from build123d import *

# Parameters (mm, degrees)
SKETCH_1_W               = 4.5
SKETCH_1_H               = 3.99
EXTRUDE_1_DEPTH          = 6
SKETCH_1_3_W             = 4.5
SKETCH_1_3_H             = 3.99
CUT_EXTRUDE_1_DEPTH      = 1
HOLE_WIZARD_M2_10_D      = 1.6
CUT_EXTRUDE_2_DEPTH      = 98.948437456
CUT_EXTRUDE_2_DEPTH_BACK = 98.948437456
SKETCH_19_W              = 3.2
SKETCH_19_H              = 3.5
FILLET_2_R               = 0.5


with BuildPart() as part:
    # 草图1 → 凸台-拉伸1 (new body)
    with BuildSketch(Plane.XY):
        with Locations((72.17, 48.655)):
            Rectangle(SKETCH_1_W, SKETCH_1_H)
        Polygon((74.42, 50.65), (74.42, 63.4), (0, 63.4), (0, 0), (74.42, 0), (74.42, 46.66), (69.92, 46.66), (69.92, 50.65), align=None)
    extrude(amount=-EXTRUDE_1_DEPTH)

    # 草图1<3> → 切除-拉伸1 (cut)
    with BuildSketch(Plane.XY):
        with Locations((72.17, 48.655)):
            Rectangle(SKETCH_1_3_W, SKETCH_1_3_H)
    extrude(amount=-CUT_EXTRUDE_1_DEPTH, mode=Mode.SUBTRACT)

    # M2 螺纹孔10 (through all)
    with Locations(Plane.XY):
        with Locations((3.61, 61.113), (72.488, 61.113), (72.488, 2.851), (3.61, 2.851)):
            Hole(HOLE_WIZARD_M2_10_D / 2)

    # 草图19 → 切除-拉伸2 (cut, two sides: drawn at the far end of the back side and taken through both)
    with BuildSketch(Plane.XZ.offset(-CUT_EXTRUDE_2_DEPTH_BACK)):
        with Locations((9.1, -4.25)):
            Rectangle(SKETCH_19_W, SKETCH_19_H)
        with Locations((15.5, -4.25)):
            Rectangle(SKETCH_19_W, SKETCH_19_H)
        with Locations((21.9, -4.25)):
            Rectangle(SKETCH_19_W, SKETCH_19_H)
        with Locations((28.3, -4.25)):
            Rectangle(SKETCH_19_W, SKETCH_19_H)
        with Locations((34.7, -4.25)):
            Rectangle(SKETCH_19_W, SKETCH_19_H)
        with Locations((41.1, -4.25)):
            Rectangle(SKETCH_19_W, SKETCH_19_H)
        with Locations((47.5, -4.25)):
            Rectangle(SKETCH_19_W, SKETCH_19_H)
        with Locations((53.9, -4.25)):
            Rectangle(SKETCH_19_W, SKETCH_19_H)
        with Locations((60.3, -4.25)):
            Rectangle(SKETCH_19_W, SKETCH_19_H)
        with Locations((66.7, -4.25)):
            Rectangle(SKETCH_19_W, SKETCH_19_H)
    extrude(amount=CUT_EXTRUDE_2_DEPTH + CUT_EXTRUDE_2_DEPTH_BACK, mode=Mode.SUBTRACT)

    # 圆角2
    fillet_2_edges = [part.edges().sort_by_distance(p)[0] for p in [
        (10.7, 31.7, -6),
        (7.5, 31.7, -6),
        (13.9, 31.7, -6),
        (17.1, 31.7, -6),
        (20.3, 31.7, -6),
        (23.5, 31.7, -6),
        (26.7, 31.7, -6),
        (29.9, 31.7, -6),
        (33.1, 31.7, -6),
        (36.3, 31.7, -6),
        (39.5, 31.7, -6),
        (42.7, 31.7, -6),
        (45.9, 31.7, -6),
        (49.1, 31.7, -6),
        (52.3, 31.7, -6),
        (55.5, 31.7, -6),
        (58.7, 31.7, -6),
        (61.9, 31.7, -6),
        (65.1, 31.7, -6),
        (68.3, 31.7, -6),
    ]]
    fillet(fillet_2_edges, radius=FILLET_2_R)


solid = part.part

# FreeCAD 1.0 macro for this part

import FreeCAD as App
import Part
import Sketcher
from FreeCAD import Vector


def edges_at(feature, points):
    """Names of the edges that pass closest to the given points."""
    edges = feature.Shape.Edges
    near = lambda p: min(range(len(edges)), key=lambda i: edges[i].distToShape(Part.Vertex(*p))[0])
    return sorted({f"Edge{near(p) + 1}" for p in points})

doc = App.newDocument("Part")
params = doc.addObject("Spreadsheet::Sheet", "Params")
for row, (alias, value) in enumerate([
    ("sketch1_height", "63.4 mm"),
    ("sketch1_width", "74.42 mm"),
    ("pad1_length", "6 mm"),
    ("sketch2_width", "4.5 mm"),
    ("sketch2_height", "3.99 mm"),
    ("pocket1_length", "1 mm"),
    ("sketch3_diameter", "1.6 mm"),
    ("hole_diameter", "1.6 mm"),
    ("sketch4_width", "3.2 mm"),
    ("sketch4_height", "3.5 mm"),
    ("fillet_radius", "0.5 mm"),
], start=1):
    params.set(f"A{row}", alias)
    params.set(f"B{row}", "=" + value)
    params.setAlias(f"B{row}", alias)

body = doc.addObject("PartDesign::Body", "Body")

sketch1 = body.newObject("Sketcher::SketchObject", "Sketch")
sketch1.AttachmentSupport = (doc.getObject("XY_Plane"), [""])
sketch1.MapMode = "FlatFace"
sketch1.addGeometry(Part.LineSegment(Vector(74, 63, 0), Vector(0, 63, 0)), False)
sketch1.addGeometry(Part.LineSegment(Vector(0, 63, 0), Vector(0, 0, 0)), False)
sketch1.addGeometry(Part.LineSegment(Vector(0, 0, 0), Vector(74, 0, 0)), False)
sketch1.addGeometry(Part.LineSegment(Vector(74, 0, 0), Vector(74, 63, 0)), False)
sketch1.addConstraint(Sketcher.Constraint("Coincident", 0, 2, 1, 1))
sketch1.addConstraint(Sketcher.Constraint("Coincident", 1, 2, 2, 1))
sketch1.addConstraint(Sketcher.Constraint("Coincident", 2, 2, 3, 1))
sketch1.addConstraint(Sketcher.Constraint("Coincident", 3, 2, 0, 1))
sketch1.addConstraint(Sketcher.Constraint("Horizontal", 0))
sketch1.addConstraint(Sketcher.Constraint("Vertical", 1))
sketch1.addConstraint(Sketcher.Constraint("Horizontal", 2))
sketch1.addConstraint(Sketcher.Constraint("Vertical", 3))
sketch1.addConstraint(Sketcher.Constraint("Coincident", 1, 2, -1, 1))
sketch1.addConstraint(Sketcher.Constraint("DistanceY", 1, 2, 1, 1, 63.4))
sketch1.addConstraint(Sketcher.Constraint("DistanceX", 0, 2, 0, 1, 74.42))
sketch1.setExpression("Constraints[9]", "Params.sketch1_height")
sketch1.setExpression("Constraints[10]", "Params.sketch1_width")
pad1 = body.newObject("PartDesign::Pad", "Pad")
pad1.Profile = sketch1
pad1.setExpression("Length", "Params.pad1_length")
pad1.Reversed = True

sketch2 = body.newObject("Sketcher::SketchObject", "Sketch001")
sketch2.AttachmentSupport = (doc.getObject("XY_Plane"), [""])
sketch2.MapMode = "FlatFace"
sketch2.addGeometry(Part.LineSegment(Vector(69.9, 50.6, 0), Vector(69.9, 46.7, 0)), False)
sketch2.addGeometry(Part.LineSegment(Vector(69.9, 46.7, 0), Vector(74.4, 46.7, 0)), False)
sketch2.addGeometry(Part.LineSegment(Vector(74.4, 46.7, 0), Vector(74.4, 50.6, 0)), False)
sketch2.addGeometry(Part.LineSegment(Vector(74.4, 50.6, 0), Vector(69.9, 50.6, 0)), False)
sketch2.addConstraint(Sketcher.Constraint("Coincident", 0, 2, 1, 1))
sketch2.addConstraint(Sketcher.Constraint("Coincident", 1, 2, 2, 1))
sketch2.addConstraint(Sketcher.Constraint("Coincident", 2, 2, 3, 1))
sketch2.addConstraint(Sketcher.Constraint("Coincident", 3, 2, 0, 1))
sketch2.addConstraint(Sketcher.Constraint("Vertical", 0))
sketch2.addConstraint(Sketcher.Constraint("Horizontal", 1))
sketch2.addConstraint(Sketcher.Constraint("Vertical", 2))
sketch2.addConstraint(Sketcher.Constraint("Horizontal", 3))
sketch2.addConstraint(Sketcher.Constraint("DistanceX", 1, 1, 1, 2, 4.5))
sketch2.addConstraint(Sketcher.Constraint("DistanceY", 0, 2, 0, 1, 3.99))
sketch2.addConstraint(Sketcher.Constraint("DistanceX", -1, 1, 0, 2, 69.92))
sketch2.addConstraint(Sketcher.Constraint("DistanceY", -1, 1, 0, 2, 46.66))
sketch2.setExpression("Constraints[8]", "Params.sketch2_width")
sketch2.setExpression("Constraints[9]", "Params.sketch2_height")
pocket1 = body.newObject("PartDesign::Pocket", "Pocket")
pocket1.Profile = sketch2
pocket1.setExpression("Length", "Params.pocket1_length")

sketch3 = body.newObject("Sketcher::SketchObject", "Sketch002")
sketch3.AttachmentSupport = (doc.getObject("XY_Plane"), [""])
sketch3.MapMode = "FlatFace"
sketch3.addGeometry(Part.Circle(Vector(3.6, 61.1, 0), Vector(0, 0, 1), 0.8), False)
sketch3.addGeometry(Part.Circle(Vector(72.5, 61.1, 0), Vector(0, 0, 1), 0.8), False)
sketch3.addGeometry(Part.Circle(Vector(72.5, 2.9, 0), Vector(0, 0, 1), 0.8), False)
sketch3.addGeometry(Part.Circle(Vector(3.6, 2.9, 0), Vector(0, 0, 1), 0.8), False)
sketch3.addConstraint(Sketcher.Constraint("Equal", 0, 1))
sketch3.addConstraint(Sketcher.Constraint("Equal", 1, 2))
sketch3.addConstraint(Sketcher.Constraint("Equal", 2, 3))
sketch3.addConstraint(Sketcher.Constraint("Horizontal", 0, 3, 1, 3))
sketch3.addConstraint(Sketcher.Constraint("Horizontal", 2, 3, 3, 3))
sketch3.addConstraint(Sketcher.Constraint("Vertical", 1, 3, 2, 3))
sketch3.addConstraint(Sketcher.Constraint("Vertical", 0, 3, 3, 3))
sketch3.addConstraint(Sketcher.Constraint("Diameter", 0, 1.6))
sketch3.addConstraint(Sketcher.Constraint("DistanceX", -1, 1, 0, 3, 3.61))
sketch3.addConstraint(Sketcher.Constraint("DistanceY", -1, 1, 0, 3, 61.113))
sketch3.addConstraint(Sketcher.Constraint("DistanceX", -1, 1, 1, 3, 72.488))
sketch3.addConstraint(Sketcher.Constraint("DistanceY", -1, 1, 2, 3, 2.851))
sketch3.setExpression("Constraints[7]", "Params.sketch3_diameter")
doc.recompute()
hole = body.newObject("PartDesign::Hole", "Hole")
hole.Profile = sketch3
hole.ThreadType = "None"
hole.setExpression("Diameter", "Params.hole_diameter")
hole.DepthType = "ThroughAll"

sketch4 = body.newObject("Sketcher::SketchObject", "Sketch003")
sketch4.AttachmentSupport = (doc.getObject("XZ_Plane"), [""])
sketch4.MapMode = "FlatFace"
sketch4.addGeometry(Part.LineSegment(Vector(7.5, -2.5, 0), Vector(7.5, -6, 0)), False)
sketch4.addGeometry(Part.LineSegment(Vector(7.5, -6, 0), Vector(10.7, -6, 0)), False)
sketch4.addGeometry(Part.LineSegment(Vector(10.7, -6, 0), Vector(10.7, -2.5, 0)), False)
sketch4.addGeometry(Part.LineSegment(Vector(10.7, -2.5, 0), Vector(7.5, -2.5, 0)), False)
sketch4.addGeometry(Part.LineSegment(Vector(13.9, -2.5, 0), Vector(13.9, -6, 0)), False)
sketch4.addGeometry(Part.LineSegment(Vector(13.9, -6, 0), Vector(17.1, -6, 0)), False)
sketch4.addGeometry(Part.LineSegment(Vector(17.1, -6, 0), Vector(17.1, -2.5, 0)), False)
sketch4.addGeometry(Part.LineSegment(Vector(17.1, -2.5, 0), Vector(13.9, -2.5, 0)), False)
sketch4.addGeometry(Part.LineSegment(Vector(20.3, -2.5, 0), Vector(20.3, -6, 0)), False)
sketch4.addGeometry(Part.LineSegment(Vector(20.3, -6, 0), Vector(23.5, -6, 0)), False)
sketch4.addGeometry(Part.LineSegment(Vector(23.5, -6, 0), Vector(23.5, -2.5, 0)), False)
sketch4.addGeometry(Part.LineSegment(Vector(23.5, -2.5, 0), Vector(20.3, -2.5, 0)), False)
sketch4.addGeometry(Part.LineSegment(Vector(26.7, -2.5, 0), Vector(26.7, -6, 0)), False)
sketch4.addGeometry(Part.LineSegment(Vector(26.7, -6, 0), Vector(29.9, -6, 0)), False)
sketch4.addGeometry(Part.LineSegment(Vector(29.9, -6, 0), Vector(29.9, -2.5, 0)), False)
sketch4.addGeometry(Part.LineSegment(Vector(29.9, -2.5, 0), Vector(26.7, -2.5, 0)), False)
sketch4.addGeometry(Part.LineSegment(Vector(33.1, -2.5, 0), Vector(33.1, -6, 0)), False)
sketch4.addGeometry(Part.LineSegment(Vector(33.1, -6, 0), Vector(36.3, -6, 0)), False)
sketch4.addGeometry(Part.LineSegment(Vector(36.3, -6, 0), Vector(36.3, -2.5, 0)), False)
sketch4.addGeometry(Part.LineSegment(Vector(36.3, -2.5, 0), Vector(33.1, -2.5, 0)), False)
sketch4.addGeometry(Part.LineSegment(Vector(39.5, -2.5, 0), Vector(39.5, -6, 0)), False)
sketch4.addGeometry(Part.LineSegment(Vector(39.5, -6, 0), Vector(42.7, -6, 0)), False)
sketch4.addGeometry(Part.LineSegment(Vector(42.7, -6, 0), Vector(42.7, -2.5, 0)), False)
sketch4.addGeometry(Part.LineSegment(Vector(42.7, -2.5, 0), Vector(39.5, -2.5, 0)), False)
sketch4.addGeometry(Part.LineSegment(Vector(45.9, -2.5, 0), Vector(45.9, -6, 0)), False)
sketch4.addGeometry(Part.LineSegment(Vector(45.9, -6, 0), Vector(49.1, -6, 0)), False)
sketch4.addGeometry(Part.LineSegment(Vector(49.1, -6, 0), Vector(49.1, -2.5, 0)), False)
sketch4.addGeometry(Part.LineSegment(Vector(49.1, -2.5, 0), Vector(45.9, -2.5, 0)), False)
sketch4.addGeometry(Part.LineSegment(Vector(52.3, -2.5, 0), Vector(52.3, -6, 0)), False)
sketch4.addGeometry(Part.LineSegment(Vector(52.3, -6, 0), Vector(55.5, -6, 0)), False)
sketch4.addGeometry(Part.LineSegment(Vector(55.5, -6, 0), Vector(55.5, -2.5, 0)), False)
sketch4.addGeometry(Part.LineSegment(Vector(55.5, -2.5, 0), Vector(52.3, -2.5, 0)), False)
sketch4.addGeometry(Part.LineSegment(Vector(58.7, -2.5, 0), Vector(58.7, -6, 0)), False)
sketch4.addGeometry(Part.LineSegment(Vector(58.7, -6, 0), Vector(61.9, -6, 0)), False)
sketch4.addGeometry(Part.LineSegment(Vector(61.9, -6, 0), Vector(61.9, -2.5, 0)), False)
sketch4.addGeometry(Part.LineSegment(Vector(61.9, -2.5, 0), Vector(58.7, -2.5, 0)), False)
sketch4.addGeometry(Part.LineSegment(Vector(65.1, -2.5, 0), Vector(65.1, -6, 0)), False)
sketch4.addGeometry(Part.LineSegment(Vector(65.1, -6, 0), Vector(68.3, -6, 0)), False)
sketch4.addGeometry(Part.LineSegment(Vector(68.3, -6, 0), Vector(68.3, -2.5, 0)), False)
sketch4.addGeometry(Part.LineSegment(Vector(68.3, -2.5, 0), Vector(65.1, -2.5, 0)), False)
sketch4.addConstraint(Sketcher.Constraint("Coincident", 0, 2, 1, 1))
sketch4.addConstraint(Sketcher.Constraint("Coincident", 1, 2, 2, 1))
sketch4.addConstraint(Sketcher.Constraint("Coincident", 2, 2, 3, 1))
sketch4.addConstraint(Sketcher.Constraint("Coincident", 3, 2, 0, 1))
sketch4.addConstraint(Sketcher.Constraint("Coincident", 4, 2, 5, 1))
sketch4.addConstraint(Sketcher.Constraint("Coincident", 5, 2, 6, 1))
sketch4.addConstraint(Sketcher.Constraint("Coincident", 6, 2, 7, 1))
sketch4.addConstraint(Sketcher.Constraint("Coincident", 7, 2, 4, 1))
sketch4.addConstraint(Sketcher.Constraint("Coincident", 8, 2, 9, 1))
sketch4.addConstraint(Sketcher.Constraint("Coincident", 9, 2, 10, 1))
sketch4.addConstraint(Sketcher.Constraint("Coincident", 10, 2, 11, 1))
sketch4.addConstraint(Sketcher.Constraint("Coincident", 11, 2, 8, 1))
sketch4.addConstraint(Sketcher.Constraint("Coincident", 12, 2, 13, 1))
sketch4.addConstraint(Sketcher.Constraint("Coincident", 13, 2, 14, 1))
sketch4.addConstraint(Sketcher.Constraint("Coincident", 14, 2, 15, 1))
sketch4.addConstraint(Sketcher.Constraint("Coincident", 15, 2, 12, 1))
sketch4.addConstraint(Sketcher.Constraint("Coincident", 16, 2, 17, 1))
sketch4.addConstraint(Sketcher.Constraint("Coincident", 17, 2, 18, 1))
sketch4.addConstraint(Sketcher.Constraint("Coincident", 18, 2, 19, 1))
sketch4.addConstraint(Sketcher.Constraint("Coincident", 19, 2, 16, 1))
sketch4.addConstraint(Sketcher.Constraint("Coincident", 20, 2, 21, 1))
sketch4.addConstraint(Sketcher.Constraint("Coincident", 21, 2, 22, 1))
sketch4.addConstraint(Sketcher.Constraint("Coincident", 22, 2, 23, 1))
sketch4.addConstraint(Sketcher.Constraint("Coincident", 23, 2, 20, 1))
sketch4.addConstraint(Sketcher.Constraint("Coincident", 24, 2, 25, 1))
sketch4.addConstraint(Sketcher.Constraint("Coincident", 25, 2, 26, 1))
sketch4.addConstraint(Sketcher.Constraint("Coincident", 26, 2, 27, 1))
sketch4.addConstraint(Sketcher.Constraint("Coincident", 27, 2, 24, 1))
sketch4.addConstraint(Sketcher.Constraint("Coincident", 28, 2, 29, 1))
sketch4.addConstraint(Sketcher.Constraint("Coincident", 29, 2, 30, 1))
sketch4.addConstraint(Sketcher.Constraint("Coincident", 30, 2, 31, 1))
sketch4.addConstraint(Sketcher.Constraint("Coincident", 31, 2, 28, 1))
sketch4.addConstraint(Sketcher.Constraint("Coincident", 32, 2, 33, 1))
sketch4.addConstraint(Sketcher.Constraint("Coincident", 33, 2, 34, 1))
sketch4.addConstraint(Sketcher.Constraint("Coincident", 34, 2, 35, 1))
sketch4.addConstraint(Sketcher.Constraint("Coincident", 35, 2, 32, 1))
sketch4.addConstraint(Sketcher.Constraint("Coincident", 36, 2, 37, 1))
sketch4.addConstraint(Sketcher.Constraint("Coincident", 37, 2, 38, 1))
sketch4.addConstraint(Sketcher.Constraint("Coincident", 38, 2, 39, 1))
sketch4.addConstraint(Sketcher.Constraint("Coincident", 39, 2, 36, 1))
sketch4.addConstraint(Sketcher.Constraint("Vertical", 0))
sketch4.addConstraint(Sketcher.Constraint("Horizontal", 1))
sketch4.addConstraint(Sketcher.Constraint("Vertical", 2))
sketch4.addConstraint(Sketcher.Constraint("Horizontal", 3))
sketch4.addConstraint(Sketcher.Constraint("Vertical", 4))
sketch4.addConstraint(Sketcher.Constraint("Horizontal", 5))
sketch4.addConstraint(Sketcher.Constraint("Vertical", 6))
sketch4.addConstraint(Sketcher.Constraint("Horizontal", 7))
sketch4.addConstraint(Sketcher.Constraint("Vertical", 8))
sketch4.addConstraint(Sketcher.Constraint("Horizontal", 9))
sketch4.addConstraint(Sketcher.Constraint("Vertical", 10))
sketch4.addConstraint(Sketcher.Constraint("Horizontal", 11))
sketch4.addConstraint(Sketcher.Constraint("Vertical", 12))
sketch4.addConstraint(Sketcher.Constraint("Horizontal", 13))
sketch4.addConstraint(Sketcher.Constraint("Vertical", 14))
sketch4.addConstraint(Sketcher.Constraint("Horizontal", 15))
sketch4.addConstraint(Sketcher.Constraint("Vertical", 16))
sketch4.addConstraint(Sketcher.Constraint("Horizontal", 17))
sketch4.addConstraint(Sketcher.Constraint("Vertical", 18))
sketch4.addConstraint(Sketcher.Constraint("Horizontal", 19))
sketch4.addConstraint(Sketcher.Constraint("Vertical", 20))
sketch4.addConstraint(Sketcher.Constraint("Horizontal", 21))
sketch4.addConstraint(Sketcher.Constraint("Vertical", 22))
sketch4.addConstraint(Sketcher.Constraint("Horizontal", 23))
sketch4.addConstraint(Sketcher.Constraint("Vertical", 24))
sketch4.addConstraint(Sketcher.Constraint("Horizontal", 25))
sketch4.addConstraint(Sketcher.Constraint("Vertical", 26))
sketch4.addConstraint(Sketcher.Constraint("Horizontal", 27))
sketch4.addConstraint(Sketcher.Constraint("Vertical", 28))
sketch4.addConstraint(Sketcher.Constraint("Horizontal", 29))
sketch4.addConstraint(Sketcher.Constraint("Vertical", 30))
sketch4.addConstraint(Sketcher.Constraint("Horizontal", 31))
sketch4.addConstraint(Sketcher.Constraint("Vertical", 32))
sketch4.addConstraint(Sketcher.Constraint("Horizontal", 33))
sketch4.addConstraint(Sketcher.Constraint("Vertical", 34))
sketch4.addConstraint(Sketcher.Constraint("Horizontal", 35))
sketch4.addConstraint(Sketcher.Constraint("Vertical", 36))
sketch4.addConstraint(Sketcher.Constraint("Horizontal", 37))
sketch4.addConstraint(Sketcher.Constraint("Vertical", 38))
sketch4.addConstraint(Sketcher.Constraint("Horizontal", 39))
sketch4.addConstraint(Sketcher.Constraint("Horizontal", 1, 2, 4, 2))
sketch4.addConstraint(Sketcher.Constraint("Horizontal", 3, 2, 6, 2))
sketch4.addConstraint(Sketcher.Constraint("Horizontal", 5, 2, 8, 2))
sketch4.addConstraint(Sketcher.Constraint("Horizontal", 7, 2, 10, 2))
sketch4.addConstraint(Sketcher.Constraint("Horizontal", 9, 2, 12, 2))
sketch4.addConstraint(Sketcher.Constraint("Horizontal", 11, 2, 14, 2))
sketch4.addConstraint(Sketcher.Constraint("Horizontal", 13, 2, 16, 2))
sketch4.addConstraint(Sketcher.Constraint("Horizontal", 15, 2, 18, 2))
sketch4.addConstraint(Sketcher.Constraint("Horizontal", 17, 2, 20, 2))
sketch4.addConstraint(Sketcher.Constraint("Horizontal", 19, 2, 22, 2))
sketch4.addConstraint(Sketcher.Constraint("Horizontal", 21, 2, 24, 2))
sketch4.addConstraint(Sketcher.Constraint("Horizontal", 23, 2, 26, 2))
sketch4.addConstraint(Sketcher.Constraint("Horizontal", 25, 2, 28, 2))
sketch4.addConstraint(Sketcher.Constraint("Horizontal", 27, 2, 30, 2))
sketch4.addConstraint(Sketcher.Constraint("Horizontal", 29, 2, 32, 2))
sketch4.addConstraint(Sketcher.Constraint("Horizontal", 31, 2, 34, 2))
sketch4.addConstraint(Sketcher.Constraint("Horizontal", 33, 2, 36, 2))
sketch4.addConstraint(Sketcher.Constraint("Horizontal", 35, 2, 38, 2))
sketch4.addConstraint(Sketcher.Constraint("Equal", 3, 5))
sketch4.addConstraint(Sketcher.Constraint("Equal", 7, 9))
sketch4.addConstraint(Sketcher.Constraint("Equal", 11, 13))
sketch4.addConstraint(Sketcher.Constraint("Equal", 15, 17))
sketch4.addConstraint(Sketcher.Constraint("Equal", 19, 21))
sketch4.addConstraint(Sketcher.Constraint("Equal", 23, 25))
sketch4.addConstraint(Sketcher.Constraint("Equal", 27, 29))
sketch4.addConstraint(Sketcher.Constraint("Equal", 31, 33))
sketch4.addConstraint(Sketcher.Constraint("Equal", 35, 37))
sketch4.addConstraint(Sketcher.Constraint("DistanceX", 1, 1, 1, 2, 3.2))
sketch4.addConstraint(Sketcher.Constraint("DistanceY", 0, 2, 0, 1, 3.5))
sketch4.addConstraint(Sketcher.Constraint("DistanceY", 0, 2, -1, 1, 6.0))
sketch4.addConstraint(Sketcher.Constraint("DistanceX", -1, 1, 0, 2, 7.5))
sketch4.addConstraint(Sketcher.Constraint("DistanceX", -1, 1, 4, 2, 13.9))
sketch4.addConstraint(Sketcher.Constraint("DistanceX", -1, 1, 8, 2, 20.3))
sketch4.addConstraint(Sketcher.Constraint("DistanceX", -1, 1, 12, 2, 26.7))
sketch4.addConstraint(Sketcher.Constraint("DistanceX", -1, 1, 16, 2, 33.1))
sketch4.addConstraint(Sketcher.Constraint("DistanceX", -1, 1, 20, 2, 39.5))
sketch4.addConstraint(Sketcher.Constraint("DistanceX", -1, 1, 24, 2, 45.9))
sketch4.addConstraint(Sketcher.Constraint("DistanceX", -1, 1, 28, 2, 52.3))
sketch4.addConstraint(Sketcher.Constraint("DistanceX", -1, 1, 32, 2, 58.7))
sketch4.addConstraint(Sketcher.Constraint("DistanceX", -1, 1, 36, 2, 65.1))
sketch4.setExpression("Constraints[107]", "Params.sketch4_width")
sketch4.setExpression("Constraints[108]", "Params.sketch4_height")
pocket2 = body.newObject("PartDesign::Pocket", "Pocket001")
pocket2.Profile = sketch4
pocket2.Type = "ThroughAll"
pocket2.Midplane = True
doc.recompute()

fillet = body.newObject("PartDesign::Fillet", "Fillet")
fillet.Base = (pocket2, edges_at(pocket2, [
    (10.7, 31.7, -6),
    (7.5, 31.7, -6),
    (13.9, 31.7, -6),
    (17.1, 31.7, -6),
    (20.3, 31.7, -6),
    (23.5, 31.7, -6),
    (26.7, 31.7, -6),
    (29.9, 31.7, -6),
    (33.1, 31.7, -6),
    (36.3, 31.7, -6),
    (39.5, 31.7, -6),
    (42.7, 31.7, -6),
    (45.9, 31.7, -6),
    (49.1, 31.7, -6),
    (52.3, 31.7, -6),
    (55.5, 31.7, -6),
    (58.7, 31.7, -6),
    (61.9, 31.7, -6),
    (65.1, 31.7, -6),
    (68.3, 31.7, -6),
]))
fillet.setExpression("Radius", "Params.fillet_radius")

doc.recompute()
